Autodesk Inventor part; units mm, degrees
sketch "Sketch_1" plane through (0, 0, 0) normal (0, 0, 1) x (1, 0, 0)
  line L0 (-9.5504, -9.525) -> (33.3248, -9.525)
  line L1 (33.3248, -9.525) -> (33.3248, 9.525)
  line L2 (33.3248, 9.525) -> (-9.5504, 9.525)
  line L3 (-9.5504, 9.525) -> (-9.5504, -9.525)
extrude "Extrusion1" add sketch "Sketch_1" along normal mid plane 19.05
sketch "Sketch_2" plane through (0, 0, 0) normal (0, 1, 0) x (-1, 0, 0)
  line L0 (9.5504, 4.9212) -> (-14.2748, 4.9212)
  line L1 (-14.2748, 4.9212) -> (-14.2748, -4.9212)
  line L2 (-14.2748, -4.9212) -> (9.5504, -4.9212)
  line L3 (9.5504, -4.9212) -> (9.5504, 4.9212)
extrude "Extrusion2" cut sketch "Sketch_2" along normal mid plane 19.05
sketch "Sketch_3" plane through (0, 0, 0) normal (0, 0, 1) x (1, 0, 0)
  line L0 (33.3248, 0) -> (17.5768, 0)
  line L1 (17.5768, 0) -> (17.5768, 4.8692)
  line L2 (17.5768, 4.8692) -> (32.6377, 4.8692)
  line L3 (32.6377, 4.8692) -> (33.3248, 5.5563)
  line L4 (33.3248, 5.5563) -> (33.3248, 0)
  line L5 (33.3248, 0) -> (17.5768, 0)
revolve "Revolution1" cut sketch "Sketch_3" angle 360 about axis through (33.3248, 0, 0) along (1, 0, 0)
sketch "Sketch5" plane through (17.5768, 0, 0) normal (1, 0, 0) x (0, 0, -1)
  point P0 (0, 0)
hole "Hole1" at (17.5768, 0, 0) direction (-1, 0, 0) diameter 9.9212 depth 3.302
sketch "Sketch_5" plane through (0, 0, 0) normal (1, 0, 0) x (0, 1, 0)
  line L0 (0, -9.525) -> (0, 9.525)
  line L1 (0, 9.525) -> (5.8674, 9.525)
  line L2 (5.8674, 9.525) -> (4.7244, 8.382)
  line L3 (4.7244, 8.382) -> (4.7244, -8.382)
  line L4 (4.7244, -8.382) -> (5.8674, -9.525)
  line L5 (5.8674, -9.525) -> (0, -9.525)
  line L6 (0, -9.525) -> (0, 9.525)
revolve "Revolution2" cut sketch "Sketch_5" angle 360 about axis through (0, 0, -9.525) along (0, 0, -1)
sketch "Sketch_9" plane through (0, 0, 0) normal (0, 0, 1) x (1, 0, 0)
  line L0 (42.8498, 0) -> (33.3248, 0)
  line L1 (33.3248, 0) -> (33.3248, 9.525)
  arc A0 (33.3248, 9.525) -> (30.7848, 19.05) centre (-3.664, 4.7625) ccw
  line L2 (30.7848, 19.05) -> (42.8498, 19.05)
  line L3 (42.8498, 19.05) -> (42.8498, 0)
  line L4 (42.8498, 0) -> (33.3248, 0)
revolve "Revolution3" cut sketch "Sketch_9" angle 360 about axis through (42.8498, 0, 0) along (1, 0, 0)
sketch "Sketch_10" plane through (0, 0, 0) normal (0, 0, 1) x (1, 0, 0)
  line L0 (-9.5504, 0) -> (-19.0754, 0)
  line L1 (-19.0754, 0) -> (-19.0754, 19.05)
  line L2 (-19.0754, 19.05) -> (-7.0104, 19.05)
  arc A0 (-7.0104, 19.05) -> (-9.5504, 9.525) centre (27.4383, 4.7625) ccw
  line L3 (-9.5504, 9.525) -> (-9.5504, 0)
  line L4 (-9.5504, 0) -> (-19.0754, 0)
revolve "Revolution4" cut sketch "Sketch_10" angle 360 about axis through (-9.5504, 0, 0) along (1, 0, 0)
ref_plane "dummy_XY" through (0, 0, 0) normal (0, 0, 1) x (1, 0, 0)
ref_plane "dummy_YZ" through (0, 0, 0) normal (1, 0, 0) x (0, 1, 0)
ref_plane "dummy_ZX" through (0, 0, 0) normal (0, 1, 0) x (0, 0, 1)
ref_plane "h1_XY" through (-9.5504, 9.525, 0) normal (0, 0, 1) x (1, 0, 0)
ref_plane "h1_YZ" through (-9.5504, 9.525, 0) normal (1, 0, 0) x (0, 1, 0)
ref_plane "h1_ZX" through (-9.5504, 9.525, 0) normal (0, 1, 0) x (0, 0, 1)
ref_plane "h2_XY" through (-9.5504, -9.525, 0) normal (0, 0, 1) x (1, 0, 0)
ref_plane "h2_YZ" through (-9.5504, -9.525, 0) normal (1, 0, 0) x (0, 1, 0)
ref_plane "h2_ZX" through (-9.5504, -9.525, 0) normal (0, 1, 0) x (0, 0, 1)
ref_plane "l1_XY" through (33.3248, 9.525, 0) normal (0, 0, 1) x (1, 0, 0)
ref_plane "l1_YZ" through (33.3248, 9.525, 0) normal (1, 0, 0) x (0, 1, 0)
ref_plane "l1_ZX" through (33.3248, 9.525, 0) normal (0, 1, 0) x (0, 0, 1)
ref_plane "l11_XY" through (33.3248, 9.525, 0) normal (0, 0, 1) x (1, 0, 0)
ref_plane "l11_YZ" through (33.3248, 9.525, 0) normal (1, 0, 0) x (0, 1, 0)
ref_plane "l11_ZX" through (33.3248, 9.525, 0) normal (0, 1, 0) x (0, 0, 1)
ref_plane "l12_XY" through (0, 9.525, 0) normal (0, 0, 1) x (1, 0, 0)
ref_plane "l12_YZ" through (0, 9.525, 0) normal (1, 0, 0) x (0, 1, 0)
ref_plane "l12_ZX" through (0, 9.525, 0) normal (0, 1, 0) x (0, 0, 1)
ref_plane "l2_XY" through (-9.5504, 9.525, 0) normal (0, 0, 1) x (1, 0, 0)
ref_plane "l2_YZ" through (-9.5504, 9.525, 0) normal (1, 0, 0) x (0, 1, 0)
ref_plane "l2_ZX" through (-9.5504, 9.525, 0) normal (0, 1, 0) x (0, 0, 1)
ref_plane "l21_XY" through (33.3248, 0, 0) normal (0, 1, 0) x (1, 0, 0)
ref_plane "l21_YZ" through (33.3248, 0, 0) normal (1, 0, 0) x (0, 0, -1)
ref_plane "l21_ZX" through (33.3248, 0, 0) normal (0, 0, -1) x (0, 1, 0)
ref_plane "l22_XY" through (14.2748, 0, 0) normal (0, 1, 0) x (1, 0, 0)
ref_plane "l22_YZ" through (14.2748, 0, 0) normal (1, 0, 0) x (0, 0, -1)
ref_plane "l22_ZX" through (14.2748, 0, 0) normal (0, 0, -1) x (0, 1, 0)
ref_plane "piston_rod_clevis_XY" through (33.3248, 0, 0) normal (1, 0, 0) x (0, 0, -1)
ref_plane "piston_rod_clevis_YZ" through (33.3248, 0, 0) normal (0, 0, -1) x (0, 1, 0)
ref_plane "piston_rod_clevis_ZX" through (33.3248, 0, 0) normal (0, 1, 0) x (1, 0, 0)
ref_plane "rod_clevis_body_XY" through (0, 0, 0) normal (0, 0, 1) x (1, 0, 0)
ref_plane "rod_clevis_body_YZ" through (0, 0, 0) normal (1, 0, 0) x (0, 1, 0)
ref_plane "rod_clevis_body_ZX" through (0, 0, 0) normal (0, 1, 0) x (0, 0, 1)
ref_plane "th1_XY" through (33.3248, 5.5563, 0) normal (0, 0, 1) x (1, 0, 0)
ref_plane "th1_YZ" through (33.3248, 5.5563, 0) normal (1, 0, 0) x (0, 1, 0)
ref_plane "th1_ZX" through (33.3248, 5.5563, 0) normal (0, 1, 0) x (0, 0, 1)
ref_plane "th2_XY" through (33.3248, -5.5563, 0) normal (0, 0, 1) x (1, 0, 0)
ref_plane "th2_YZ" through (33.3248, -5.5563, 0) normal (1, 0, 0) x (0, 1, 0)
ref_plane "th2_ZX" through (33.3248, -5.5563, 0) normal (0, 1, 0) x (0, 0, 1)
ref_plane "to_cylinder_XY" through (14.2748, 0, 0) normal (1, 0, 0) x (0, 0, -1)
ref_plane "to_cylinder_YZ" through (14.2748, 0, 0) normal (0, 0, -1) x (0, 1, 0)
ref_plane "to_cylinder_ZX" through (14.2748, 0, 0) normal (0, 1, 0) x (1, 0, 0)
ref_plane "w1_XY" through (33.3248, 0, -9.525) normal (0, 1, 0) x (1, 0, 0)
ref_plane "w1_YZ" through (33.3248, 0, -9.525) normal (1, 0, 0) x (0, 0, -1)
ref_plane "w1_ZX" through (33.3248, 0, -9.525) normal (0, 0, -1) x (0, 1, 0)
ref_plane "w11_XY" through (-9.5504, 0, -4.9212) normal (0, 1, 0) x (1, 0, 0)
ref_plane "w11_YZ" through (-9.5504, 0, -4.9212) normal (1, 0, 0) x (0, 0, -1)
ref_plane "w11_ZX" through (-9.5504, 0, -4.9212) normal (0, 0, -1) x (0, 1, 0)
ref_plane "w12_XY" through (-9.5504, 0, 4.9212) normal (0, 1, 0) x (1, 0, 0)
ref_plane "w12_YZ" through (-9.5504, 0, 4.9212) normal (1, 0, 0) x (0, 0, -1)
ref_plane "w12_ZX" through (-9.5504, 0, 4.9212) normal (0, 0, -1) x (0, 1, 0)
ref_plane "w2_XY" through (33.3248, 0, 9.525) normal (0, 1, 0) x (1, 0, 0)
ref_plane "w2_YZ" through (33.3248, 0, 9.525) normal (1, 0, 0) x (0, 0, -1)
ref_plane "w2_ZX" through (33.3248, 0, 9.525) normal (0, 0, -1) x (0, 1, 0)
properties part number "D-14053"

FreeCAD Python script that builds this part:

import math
import FreeCAD as App
import Part
import Sketcher
Q = App.Units.Quantity


def add_polygon(sketch, points):
    """Adds a closed chain of lines whose ends are joined by coincident constraints."""
    first, n = sketch.GeometryCount, len(points)
    for a, b in zip(points, points[1:] + points[:1]):
        sketch.addGeometry(Part.LineSegment(App.Vector(*a, 0), App.Vector(*b, 0)), False)
    for i in range(n):
        sketch.addConstraint(Sketcher.Constraint("Coincident", first + i, 2, first + (i + 1) % n, 1))

doc = App.newDocument("Part")
body = doc.addObject("PartDesign::Body", "Body")

# Sketch on XY plane
sketch1 = body.newObject("Sketcher::SketchObject", "Sketch")
sketch1.AttachmentSupport = (doc.getObject("XY_Plane"), [""])
sketch1.MapMode = "FlatFace"
add_polygon(sketch1, [(-10, 10), (-10, -10), (33, -10), (33, 10)])  # lines 0-3
sketch1.addConstraint([
    Sketcher.Constraint("Vertical", 0),
    Sketcher.Constraint("Horizontal", 1),
    Sketcher.Constraint("Vertical", 2),
    Sketcher.Constraint("Horizontal", 3),
    Sketcher.Constraint("DistanceY", 0, 2, 0, 1, Q("0.75 in")),
    Sketcher.Constraint("DistanceX", 1, 1, 1, 2, Q("1.688 in")),
    Sketcher.Constraint("DistanceX", 0, 2, -1, 1, Q("0.376 in")),
    Sketcher.Constraint("DistanceY", 0, 2, -1, 1, Q("0.375 in")),
])
pad1 = body.newObject("PartDesign::Pad", "Pad")
pad1.Profile = sketch1
pad1.Length = Q("0.75 in")
pad1.Midplane = True

# Sketch on XZ plane
sketch2 = body.newObject("Sketcher::SketchObject", "Sketch001")
sketch2.AttachmentSupport = (doc.getObject("XZ_Plane"), [""])
sketch2.MapMode = "FlatFace"
add_polygon(sketch2, [(-10, -5), (-10, 5), (14, 5), (14, -5)])  # lines 0-3
sketch2.addConstraint([
    Sketcher.Constraint("Vertical", 0),
    Sketcher.Constraint("Horizontal", 1),
    Sketcher.Constraint("Vertical", 2),
    Sketcher.Constraint("Horizontal", 3),
    Sketcher.Constraint("DistanceX", 1, 1, 1, 2, Q("0.938 in")),
    Sketcher.Constraint("DistanceY", 0, 1, 0, 2, Q("0.3875 in")),
    Sketcher.Constraint("DistanceX", 0, 2, -1, 1, Q("0.376 in")),
    Sketcher.Constraint("DistanceY", -1, 1, 0, 2, Q("4.9212 mm")),
])
pocket1 = body.newObject("PartDesign::Pocket", "Pocket")
pocket1.Profile = sketch2
pocket1.Length = Q("0.75 in")
pocket1.Midplane = True

# Sketch on XY plane
sketch3 = body.newObject("Sketcher::SketchObject", "Sketch002")
sketch3.AttachmentSupport = (doc.getObject("XY_Plane"), [""])
sketch3.MapMode = "FlatFace"
add_polygon(sketch3, [(17.6, 0), (33.3, 0), (33.3, 5.6), (32.6, 4.9), (17.6, 4.9)])  # lines 0-4
sketch3.addConstraint([
    Sketcher.Constraint("Horizontal", 0),
    Sketcher.Constraint("Vertical", 1),
    Sketcher.Constraint("Horizontal", 3),
    Sketcher.Constraint("Vertical", 4),
    Sketcher.Constraint("PointOnObject", 0, 2, -1),
    Sketcher.Constraint("Angle", 2, Q("-135 deg")),
    Sketcher.Constraint("DistanceX", 0, 1, 0, 2, Q("0.62 in")),
    Sketcher.Constraint("DistanceY", 1, 1, 1, 2, Q("0.218752 in")),
    Sketcher.Constraint("DistanceY", 4, 2, 4, 1, Q("0.1917 in")),
    Sketcher.Constraint("DistanceX", -1, 1, 0, 2, Q("1.312 in")),
])
groove = body.newObject("PartDesign::Groove", "Groove")
groove.Profile = sketch3
groove.ReferenceAxis = (sketch3, ["H_Axis"])
groove.Angle = 360

# Sketch on YZ plane
sketch4 = body.newObject("Sketcher::SketchObject", "Sketch003")
sketch4.AttachmentSupport = (doc.getObject("YZ_Plane"), [""])
sketch4.MapMode = "FlatFace"
sketch4.AttachmentOffset = App.Placement(App.Vector(0, 0, 0.692 * 25.4), App.Rotation())
sketch4.addGeometry(Part.Circle(App.Vector(0, 0, 0), App.Vector(0, 0, 1), 5), False)
sketch4.addConstraint([
    Sketcher.Constraint("Coincident", 0, 3, -1, 1),
    Sketcher.Constraint("Diameter", 0, Q("0.3906 in")),
])
doc.recompute()
hole = body.newObject("PartDesign::Hole", "Hole")
hole.Profile = sketch4
hole.ThreadType = "None"
hole.Diameter = Q("0.3905984 in")
hole.DepthType = "Dimension"
hole.Depth = Q("0.13 in")
hole.DrillPoint = "Flat"

# Sketch on YZ plane
sketch5 = body.newObject("Sketcher::SketchObject", "Sketch004")
sketch5.AttachmentSupport = (doc.getObject("YZ_Plane"), [""])
sketch5.MapMode = "FlatFace"
add_polygon(sketch5, [(0, 9.5), (0, -9.5), (5.9, -9.5), (4.7, -8.4), (4.7, 8.4), (5.9, 9.5)])  # lines 0-5
sketch5.addConstraint([
    Sketcher.Constraint("Vertical", 0),
    Sketcher.Constraint("Horizontal", 1),
    Sketcher.Constraint("Vertical", 3),
    Sketcher.Constraint("Horizontal", 5),
    Sketcher.Constraint("Symmetric", 0, 2, 5, 2, -1, 1),
    Sketcher.Constraint("Perpendicular", 2, 4),
    Sketcher.Constraint("Vertical", 1, 2, 4, 2),
    Sketcher.Constraint("Equal", 2, 4),
    Sketcher.Constraint("DistanceY", 0, 2, 0, 1, Q("0.75 in")),
    Sketcher.Constraint("DistanceY", 3, 1, 3, 2, Q("0.66 in")),
    Sketcher.Constraint("DistanceX", 1, 1, 1, 2, Q("0.231 in")),
])
groove2 = body.newObject("PartDesign::Groove", "Groove001")
groove2.Profile = sketch5
groove2.ReferenceAxis = (sketch5, ["V_Axis"])
groove2.Angle = 360

# Sketch on XY plane
sketch6 = body.newObject("Sketcher::SketchObject", "Sketch005")
sketch6.AttachmentSupport = (doc.getObject("XY_Plane"), [""])
sketch6.MapMode = "FlatFace"
sketch6.addGeometry([
    Part.LineSegment(App.Vector(33, 0, 0), App.Vector(43, 0, 0)),  # 0
    Part.LineSegment(App.Vector(43, 0, 0), App.Vector(43, 19, 0)),  # 1
    Part.LineSegment(App.Vector(43, 19, 0), App.Vector(31, 19, 0)),  # 2
    Part.ArcOfCircle(Part.Circle(App.Vector(-4, 5, 0), App.Vector(0, 0, 1), 37), math.radians(7.34), math.radians(22.53)),  # 3
    Part.LineSegment(App.Vector(33, 10, 0), App.Vector(33, 0, 0)),  # 4
], False)
sketch6.addConstraint([
    Sketcher.Constraint("Coincident", 0, 2, 1, 1),
    Sketcher.Constraint("Coincident", 1, 2, 2, 1),
    Sketcher.Constraint("Coincident", 2, 2, 3, 2),
    Sketcher.Constraint("Coincident", 3, 1, 4, 1),
    Sketcher.Constraint("Coincident", 4, 2, 0, 1),
    Sketcher.Constraint("Horizontal", 0),
    Sketcher.Constraint("Vertical", 1),
    Sketcher.Constraint("Horizontal", 2),
    Sketcher.Constraint("Vertical", 4),
    Sketcher.Constraint("PointOnObject", 0, 2, -1),
    Sketcher.Constraint("Equal", 0, 4),
    Sketcher.Constraint("DistanceY", 1, 1, 1, 2, Q("0.75 in")),
    Sketcher.Constraint("DistanceX", 2, 2, 3, 1, Q("0.1 in")),
    Sketcher.Constraint("DistanceX", 0, 1, 0, 2, Q("0.375 in")),
    Sketcher.Constraint("Radius", 3, Q("37.2941 mm")),
    Sketcher.Constraint("DistanceX", -1, 1, 0, 2, Q("1.687 in")),
])
groove3 = body.newObject("PartDesign::Groove", "Groove002")
groove3.Profile = sketch6
groove3.ReferenceAxis = (sketch6, ["H_Axis"])
groove3.Angle = 360

# Sketch on XY plane
sketch7 = body.newObject("Sketcher::SketchObject", "Sketch006")
sketch7.AttachmentSupport = (doc.getObject("XY_Plane"), [""])
sketch7.MapMode = "FlatFace"
sketch7.addGeometry([
    Part.LineSegment(App.Vector(-19, 0, 0), App.Vector(-10, 0, 0)),  # 0
    Part.LineSegment(App.Vector(-10, 0, 0), App.Vector(-10, 10, 0)),  # 1
    Part.ArcOfCircle(Part.Circle(App.Vector(27, 5, 0), App.Vector(0, 0, 1), 37), math.radians(157.47), math.radians(172.66)),  # 2
    Part.LineSegment(App.Vector(-7, 19, 0), App.Vector(-19, 19, 0)),  # 3
    Part.LineSegment(App.Vector(-19, 19, 0), App.Vector(-19, 0, 0)),  # 4
], False)
sketch7.addConstraint([
    Sketcher.Constraint("Coincident", 0, 2, 1, 1),
    Sketcher.Constraint("Coincident", 1, 2, 2, 2),
    Sketcher.Constraint("Coincident", 2, 1, 3, 1),
    Sketcher.Constraint("Coincident", 3, 2, 4, 1),
    Sketcher.Constraint("Coincident", 4, 2, 0, 1),
    Sketcher.Constraint("Horizontal", 0),
    Sketcher.Constraint("Vertical", 1),
    Sketcher.Constraint("Horizontal", 3),
    Sketcher.Constraint("Vertical", 4),
    Sketcher.Constraint("PointOnObject", 0, 2, -1),
    Sketcher.Constraint("Equal", 0, 1),
    Sketcher.Constraint("DistanceY", 4, 2, 4, 1, Q("0.75 in")),
    Sketcher.Constraint("DistanceX", 1, 2, 2, 1, Q("0.1 in")),
    Sketcher.Constraint("DistanceX", 0, 1, 0, 2, Q("0.375 in")),
    Sketcher.Constraint("Radius", 2, Q("37.294 mm")),
    Sketcher.Constraint("DistanceX", 0, 2, -1, 1, Q("0.376 in")),
])
groove4 = body.newObject("PartDesign::Groove", "Groove003")
groove4.Profile = sketch7
groove4.ReferenceAxis = (sketch7, ["H_Axis"])
groove4.Angle = 360

doc.recompute()
